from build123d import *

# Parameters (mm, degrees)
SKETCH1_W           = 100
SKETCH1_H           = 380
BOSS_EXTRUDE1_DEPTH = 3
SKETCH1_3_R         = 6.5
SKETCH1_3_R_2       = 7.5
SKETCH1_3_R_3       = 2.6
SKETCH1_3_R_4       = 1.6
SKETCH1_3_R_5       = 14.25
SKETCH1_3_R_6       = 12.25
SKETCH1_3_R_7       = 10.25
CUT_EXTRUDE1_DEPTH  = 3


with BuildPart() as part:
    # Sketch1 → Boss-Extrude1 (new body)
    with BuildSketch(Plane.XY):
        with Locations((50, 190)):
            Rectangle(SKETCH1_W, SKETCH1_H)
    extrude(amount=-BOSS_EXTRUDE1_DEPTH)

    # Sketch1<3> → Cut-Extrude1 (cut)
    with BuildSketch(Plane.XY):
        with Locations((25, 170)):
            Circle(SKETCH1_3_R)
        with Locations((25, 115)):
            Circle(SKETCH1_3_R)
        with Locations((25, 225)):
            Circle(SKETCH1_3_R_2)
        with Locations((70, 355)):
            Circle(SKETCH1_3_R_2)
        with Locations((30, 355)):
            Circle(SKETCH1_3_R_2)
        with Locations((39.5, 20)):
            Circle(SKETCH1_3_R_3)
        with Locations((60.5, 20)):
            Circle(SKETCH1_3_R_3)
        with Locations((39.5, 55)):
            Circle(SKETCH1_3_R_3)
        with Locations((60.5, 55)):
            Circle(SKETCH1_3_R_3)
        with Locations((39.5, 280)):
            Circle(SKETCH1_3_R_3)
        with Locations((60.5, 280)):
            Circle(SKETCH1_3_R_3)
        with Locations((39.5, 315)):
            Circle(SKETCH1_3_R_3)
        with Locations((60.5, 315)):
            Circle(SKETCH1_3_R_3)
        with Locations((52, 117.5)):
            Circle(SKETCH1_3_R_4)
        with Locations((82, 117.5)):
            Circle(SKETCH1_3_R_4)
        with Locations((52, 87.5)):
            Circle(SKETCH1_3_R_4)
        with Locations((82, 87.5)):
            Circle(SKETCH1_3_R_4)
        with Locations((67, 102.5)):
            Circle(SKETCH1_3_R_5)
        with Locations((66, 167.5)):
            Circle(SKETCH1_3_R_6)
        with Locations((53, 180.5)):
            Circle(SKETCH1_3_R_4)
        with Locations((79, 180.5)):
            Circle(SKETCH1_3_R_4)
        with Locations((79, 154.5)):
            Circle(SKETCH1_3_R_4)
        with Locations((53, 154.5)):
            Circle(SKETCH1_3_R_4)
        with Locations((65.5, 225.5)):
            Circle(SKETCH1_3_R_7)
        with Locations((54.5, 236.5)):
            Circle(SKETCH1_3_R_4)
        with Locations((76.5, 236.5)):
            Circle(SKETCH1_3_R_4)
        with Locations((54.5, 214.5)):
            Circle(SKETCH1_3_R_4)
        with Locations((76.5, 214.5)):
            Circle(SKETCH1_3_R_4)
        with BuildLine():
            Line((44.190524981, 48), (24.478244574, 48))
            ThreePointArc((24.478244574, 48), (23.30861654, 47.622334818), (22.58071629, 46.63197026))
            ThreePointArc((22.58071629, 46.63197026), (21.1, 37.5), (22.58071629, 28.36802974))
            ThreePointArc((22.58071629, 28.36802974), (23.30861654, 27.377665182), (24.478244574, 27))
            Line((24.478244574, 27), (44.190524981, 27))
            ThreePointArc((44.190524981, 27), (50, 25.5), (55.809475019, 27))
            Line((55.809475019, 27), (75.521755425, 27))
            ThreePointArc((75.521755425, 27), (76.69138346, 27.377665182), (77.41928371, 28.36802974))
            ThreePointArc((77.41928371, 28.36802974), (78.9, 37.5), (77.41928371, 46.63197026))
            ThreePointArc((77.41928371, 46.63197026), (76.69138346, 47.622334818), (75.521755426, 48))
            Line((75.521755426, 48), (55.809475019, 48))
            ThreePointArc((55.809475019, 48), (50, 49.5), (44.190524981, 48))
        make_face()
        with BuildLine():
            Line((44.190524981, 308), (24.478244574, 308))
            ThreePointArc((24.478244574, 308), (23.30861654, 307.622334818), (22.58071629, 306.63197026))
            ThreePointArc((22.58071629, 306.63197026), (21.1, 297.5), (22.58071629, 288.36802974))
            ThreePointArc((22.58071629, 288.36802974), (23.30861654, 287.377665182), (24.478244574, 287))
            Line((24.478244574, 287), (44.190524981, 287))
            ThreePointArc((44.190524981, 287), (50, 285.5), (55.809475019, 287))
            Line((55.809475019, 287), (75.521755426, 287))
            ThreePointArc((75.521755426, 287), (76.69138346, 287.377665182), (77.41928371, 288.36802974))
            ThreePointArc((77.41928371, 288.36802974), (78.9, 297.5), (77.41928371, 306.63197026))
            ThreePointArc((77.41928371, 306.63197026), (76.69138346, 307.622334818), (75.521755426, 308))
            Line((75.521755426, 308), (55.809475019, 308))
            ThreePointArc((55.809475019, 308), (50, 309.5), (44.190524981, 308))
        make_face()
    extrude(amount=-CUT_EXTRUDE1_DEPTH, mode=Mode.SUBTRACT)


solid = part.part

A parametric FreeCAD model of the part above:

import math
import FreeCAD as App
import Part
import Sketcher

V = App.Vector
Q = App.Units.Quantity


def add_polygon(sketch, points):
    """Adds a closed chain of lines whose ends are joined by coincident constraints."""
    first, n = sketch.GeometryCount, len(points)
    for a, b in zip(points, points[1:] + points[:1]):
        sketch.addGeometry(Part.LineSegment(App.Vector(*a, 0), App.Vector(*b, 0)), False)
    for i in range(n):
        sketch.addConstraint(Sketcher.Constraint("Coincident", first + i, 2, first + (i + 1) % n, 1))

doc = App.newDocument("Part")
body = doc.addObject("PartDesign::Body", "Body")

sketch1 = body.newObject("Sketcher::SketchObject", "Sketch")
sketch1.AttachmentSupport = (doc.getObject("XY_Plane"), [""])
sketch1.MapMode = "FlatFace"
add_polygon(sketch1, [(0, 380), (0, 0), (100, 0), (100, 380)])
sketch1.addConstraint([
    Sketcher.Constraint("Vertical", 0),
    Sketcher.Constraint("Horizontal", 1),
    Sketcher.Constraint("Vertical", 2),
    Sketcher.Constraint("Horizontal", 3),
    Sketcher.Constraint("Coincident", 0, 2, -1, 1),
    Sketcher.Constraint("DistanceX", 1, 1, 1, 2, Q("100 mm")),
    Sketcher.Constraint("DistanceY", 0, 2, 0, 1, Q("380 mm")),
])
pad1 = body.newObject("PartDesign::Pad", "Pad")
pad1.Profile = sketch1
pad1.Length = 3
pad1.Reversed = True

sketch2 = body.newObject("Sketcher::SketchObject", "Sketch001")
sketch2.AttachmentSupport = (doc.getObject("XY_Plane"), [""])
sketch2.MapMode = "FlatFace"
sketch2.addGeometry([
    Part.Circle(V(25, 170, 0), V(0, 0, 1), 6.5),
    Part.Circle(V(25, 115, 0), V(0, 0, 1), 6.5),
    Part.Circle(V(25, 225, 0), V(0, 0, 1), 7.5),
    Part.Circle(V(70, 355, 0), V(0, 0, 1), 7.5),
    Part.Circle(V(30, 355, 0), V(0, 0, 1), 7.5),
    Part.Circle(V(39.5, 20, 0), V(0, 0, 1), 2.6),
    Part.Circle(V(60.5, 20, 0), V(0, 0, 1), 2.6),
    Part.Circle(V(39.5, 55, 0), V(0, 0, 1), 2.6),
    Part.Circle(V(60.5, 55, 0), V(0, 0, 1), 2.6),
    Part.Circle(V(39.5, 280, 0), V(0, 0, 1), 2.6),
    Part.Circle(V(60.5, 280, 0), V(0, 0, 1), 2.6),
    Part.Circle(V(39.5, 315, 0), V(0, 0, 1), 2.6),
    Part.Circle(V(60.5, 315, 0), V(0, 0, 1), 2.6),
    Part.Circle(V(52, 117.5, 0), V(0, 0, 1), 1.6),
    Part.Circle(V(82, 117.5, 0), V(0, 0, 1), 1.6),
    Part.Circle(V(52, 87.5, 0), V(0, 0, 1), 1.6),
    Part.Circle(V(82, 87.5, 0), V(0, 0, 1), 1.6),
    Part.Circle(V(67, 102.5, 0), V(0, 0, 1), 14.2),
    Part.Circle(V(66, 167.5, 0), V(0, 0, 1), 12.2),
    Part.Circle(V(53, 180.5, 0), V(0, 0, 1), 1.6),
    Part.Circle(V(79, 180.5, 0), V(0, 0, 1), 1.6),
    Part.Circle(V(79, 154.5, 0), V(0, 0, 1), 1.6),
    Part.Circle(V(53, 154.5, 0), V(0, 0, 1), 1.6),
    Part.Circle(V(65.5, 225.5, 0), V(0, 0, 1), 10.2),
    Part.Circle(V(54.5, 236.5, 0), V(0, 0, 1), 1.6),
    Part.Circle(V(76.5, 236.5, 0), V(0, 0, 1), 1.6),
    Part.Circle(V(54.5, 214.5, 0), V(0, 0, 1), 1.6),
    Part.Circle(V(76.5, 214.5, 0), V(0, 0, 1), 1.6),
    Part.LineSegment(V(44.2, 48, 0), V(24.5, 48, 0)),
    Part.ArcOfCircle(Part.Circle(V(24.5, 46, 0), V(0, 0, 1), 2), math.radians(90), math.radians(162)),
    Part.ArcOfCircle(Part.Circle(V(50, 37.5, 0), V(0, 0, 1), 28.9), math.radians(162), math.radians(198)),
    Part.ArcOfCircle(Part.Circle(V(24.5, 29, 0), V(0, 0, 1), 2), math.radians(-162), math.radians(-90)),
    Part.LineSegment(V(24.5, 27, 0), V(44.2, 27, 0)),
    Part.ArcOfCircle(Part.Circle(V(50, 37.5, 0), V(0, 0, 1), 12), math.radians(-119), math.radians(-61)),
    Part.LineSegment(V(55.8, 27, 0), V(75.5, 27, 0)),
    Part.ArcOfCircle(Part.Circle(V(75.5, 29, 0), V(0, 0, 1), 2), math.radians(-90), math.radians(-18)),
    Part.ArcOfCircle(Part.Circle(V(50, 37.5, 0), V(0, 0, 1), 28.9), math.radians(-18), math.radians(18)),
    Part.ArcOfCircle(Part.Circle(V(75.5, 46, 0), V(0, 0, 1), 2), math.radians(18), math.radians(90)),
    Part.LineSegment(V(75.5, 48, 0), V(55.8, 48, 0)),
    Part.ArcOfCircle(Part.Circle(V(50, 37.5, 0), V(0, 0, 1), 12), math.radians(61), math.radians(119)),
    Part.LineSegment(V(44.2, 308, 0), V(24.5, 308, 0)),
    Part.ArcOfCircle(Part.Circle(V(24.5, 306, 0), V(0, 0, 1), 2), math.radians(90), math.radians(162)),
    Part.ArcOfCircle(Part.Circle(V(50, 297.5, 0), V(0, 0, 1), 28.9), math.radians(162), math.radians(198)),
    Part.ArcOfCircle(Part.Circle(V(24.5, 289, 0), V(0, 0, 1), 2), math.radians(-162), math.radians(-90)),
    Part.LineSegment(V(24.5, 287, 0), V(44.2, 287, 0)),
    Part.ArcOfCircle(Part.Circle(V(50, 297.5, 0), V(0, 0, 1), 12), math.radians(-119), math.radians(-61)),
    Part.LineSegment(V(55.8, 287, 0), V(75.5, 287, 0)),
    Part.ArcOfCircle(Part.Circle(V(75.5, 289, 0), V(0, 0, 1), 2), math.radians(-90), math.radians(-18)),
    Part.ArcOfCircle(Part.Circle(V(50, 297.5, 0), V(0, 0, 1), 28.9), math.radians(-18), math.radians(18)),
    Part.ArcOfCircle(Part.Circle(V(75.5, 306, 0), V(0, 0, 1), 2), math.radians(18), math.radians(90)),
    Part.LineSegment(V(75.5, 308, 0), V(55.8, 308, 0)),
    Part.ArcOfCircle(Part.Circle(V(50, 297.5, 0), V(0, 0, 1), 12), math.radians(61), math.radians(119)),
], False)
sketch2.addConstraint([
    Sketcher.Constraint("Tangent", 28, 2, 29, 1),
    Sketcher.Constraint("Tangent", 29, 2, 30, 1),
    Sketcher.Constraint("Tangent", 30, 2, 31, 1),
    Sketcher.Constraint("Tangent", 31, 2, 32, 1),
    Sketcher.Constraint("Coincident", 32, 2, 33, 1),
    Sketcher.Constraint("Coincident", 33, 2, 34, 1),
    Sketcher.Constraint("Tangent", 34, 2, 35, 1),
    Sketcher.Constraint("Tangent", 35, 2, 36, 1),
    Sketcher.Constraint("Tangent", 36, 2, 37, 1),
    Sketcher.Constraint("Tangent", 37, 2, 38, 1),
    Sketcher.Constraint("Coincident", 38, 2, 39, 1),
    Sketcher.Constraint("Coincident", 39, 2, 28, 1),
    Sketcher.Constraint("Tangent", 40, 2, 41, 1),
    Sketcher.Constraint("Tangent", 41, 2, 42, 1),
    Sketcher.Constraint("Tangent", 42, 2, 43, 1),
    Sketcher.Constraint("Tangent", 43, 2, 44, 1),
    Sketcher.Constraint("Coincident", 44, 2, 45, 1),
    Sketcher.Constraint("Coincident", 45, 2, 46, 1),
    Sketcher.Constraint("Tangent", 46, 2, 47, 1),
    Sketcher.Constraint("Tangent", 47, 2, 48, 1),
    Sketcher.Constraint("Tangent", 48, 2, 49, 1),
    Sketcher.Constraint("Tangent", 49, 2, 50, 1),
    Sketcher.Constraint("Coincident", 50, 2, 51, 1),
    Sketcher.Constraint("Coincident", 51, 2, 40, 1),
    Sketcher.Constraint("Horizontal", 28),
    Sketcher.Constraint("Horizontal", 32),
    Sketcher.Constraint("Horizontal", 34),
    Sketcher.Constraint("Horizontal", 38),
    Sketcher.Constraint("Horizontal", 40),
    Sketcher.Constraint("Horizontal", 44),
    Sketcher.Constraint("Horizontal", 46),
    Sketcher.Constraint("Horizontal", 50),
    Sketcher.Constraint("Coincident", 33, 3, 30, 3),
    Sketcher.Constraint("Coincident", 36, 3, 30, 3),
    Sketcher.Constraint("Coincident", 39, 3, 30, 3),
    Sketcher.Constraint("Coincident", 45, 3, 42, 3),
    Sketcher.Constraint("Coincident", 48, 3, 42, 3),
    Sketcher.Constraint("Coincident", 51, 3, 42, 3),
    Sketcher.Constraint("Equal", 0, 1),
    Sketcher.Constraint("Equal", 2, 3),
    Sketcher.Constraint("Equal", 3, 4),
    Sketcher.Constraint("Equal", 5, 6),
    Sketcher.Constraint("Equal", 6, 7),
    Sketcher.Constraint("Equal", 7, 8),
    Sketcher.Constraint("Equal", 8, 9),
    Sketcher.Constraint("Equal", 9, 10),
    Sketcher.Constraint("Equal", 10, 11),
    Sketcher.Constraint("Equal", 11, 12),
    Sketcher.Constraint("Equal", 13, 14),
    Sketcher.Constraint("Equal", 14, 15),
    Sketcher.Constraint("Equal", 15, 16),
    Sketcher.Constraint("Equal", 16, 19),
    Sketcher.Constraint("Equal", 19, 20),
    Sketcher.Constraint("Equal", 20, 21),
    Sketcher.Constraint("Equal", 21, 22),
    Sketcher.Constraint("Equal", 22, 24),
    Sketcher.Constraint("Equal", 24, 25),
    Sketcher.Constraint("Equal", 25, 26),
    Sketcher.Constraint("Equal", 26, 27),
    Sketcher.Constraint("Equal", 29, 31),
    Sketcher.Constraint("Equal", 31, 35),
    Sketcher.Constraint("Equal", 30, 36),
    Sketcher.Constraint("Equal", 35, 37),
    Sketcher.Constraint("Equal", 33, 39),
    Sketcher.Constraint("Equal", 37, 41),
    Sketcher.Constraint("Equal", 36, 42),
    Sketcher.Constraint("Equal", 41, 43),
    Sketcher.Constraint("Equal", 39, 45),
    Sketcher.Constraint("Equal", 43, 47),
    Sketcher.Constraint("Equal", 42, 48),
    Sketcher.Constraint("Equal", 47, 49),
    Sketcher.Constraint("Equal", 45, 51),
    Sketcher.Constraint("Horizontal", 3, 3, 4, 3),
    Sketcher.Constraint("Horizontal", 5, 3, 6, 3),
    Sketcher.Constraint("Horizontal", 7, 3, 8, 3),
    Sketcher.Constraint("Horizontal", 9, 3, 10, 3),
    Sketcher.Constraint("Horizontal", 11, 3, 12, 3),
    Sketcher.Constraint("Horizontal", 13, 3, 14, 3),
    Sketcher.Constraint("Horizontal", 15, 3, 16, 3),
    Sketcher.Constraint("Horizontal", 19, 3, 20, 3),
    Sketcher.Constraint("Horizontal", 21, 3, 22, 3),
    Sketcher.Constraint("Horizontal", 24, 3, 25, 3),
    Sketcher.Constraint("Horizontal", 26, 3, 27, 3),
    Sketcher.Constraint("Horizontal", 31, 3, 35, 3),
    Sketcher.Constraint("Horizontal", 29, 3, 37, 3),
    Sketcher.Constraint("Horizontal", 43, 3, 47, 3),
    Sketcher.Constraint("Horizontal", 41, 3, 49, 3),
    Sketcher.Constraint("Vertical", 0, 3, 1, 3),
    Sketcher.Constraint("Vertical", 1, 3, 2, 3),
    Sketcher.Constraint("Vertical", 5, 3, 7, 3),
    Sketcher.Constraint("Vertical", 6, 3, 8, 3),
    Sketcher.Constraint("Vertical", 7, 3, 9, 3),
    Sketcher.Constraint("Vertical", 8, 3, 10, 3),
    Sketcher.Constraint("Vertical", 9, 3, 11, 3),
    Sketcher.Constraint("Vertical", 10, 3, 12, 3),
    Sketcher.Constraint("Vertical", 13, 3, 15, 3),
    Sketcher.Constraint("Vertical", 14, 3, 16, 3),
    Sketcher.Constraint("Vertical", 20, 3, 21, 3),
    Sketcher.Constraint("Vertical", 19, 3, 22, 3),
    Sketcher.Constraint("Vertical", 24, 3, 26, 3),
    Sketcher.Constraint("Vertical", 25, 3, 27, 3),
    Sketcher.Constraint("Vertical", 29, 3, 31, 3),
    Sketcher.Constraint("Vertical", 31, 3, 41, 3),
    Sketcher.Constraint("Vertical", 39, 3, 42, 3),
    Sketcher.Constraint("Vertical", 41, 3, 43, 3),
    Sketcher.Constraint("Diameter", 0, Q("13 mm")),
    Sketcher.Constraint("Diameter", 2, Q("15 mm")),
    Sketcher.Constraint("Radius", 29, Q("2 mm")),
    Sketcher.Constraint("Radius", 33, Q("12 mm")),
    Sketcher.Constraint("Diameter", 5, Q("5.2 mm")),
    Sketcher.Constraint("Diameter", 13, Q("3.2 mm")),
    Sketcher.Constraint("Diameter", 17, Q("28.5 mm")),
    Sketcher.Constraint("Diameter", 18, Q("24.5 mm")),
    Sketcher.Constraint("Diameter", 23, Q("20.5 mm")),
    Sketcher.Constraint("Radius", 30, Q("28.9 mm")),
    Sketcher.Constraint("DistanceX", -1, 1, 0, 3, Q("25 mm")),
    Sketcher.Constraint("DistanceY", -1, 1, 0, 3, Q("170 mm")),
    Sketcher.Constraint("DistanceY", -1, 1, 1, 3, Q("115 mm")),
    Sketcher.Constraint("DistanceY", -1, 1, 2, 3, Q("225 mm")),
    Sketcher.Constraint("DistanceX", -1, 1, 3, 3, Q("70 mm")),
    Sketcher.Constraint("DistanceY", -1, 1, 3, 3, Q("355 mm")),
    Sketcher.Constraint("DistanceX", -1, 1, 4, 3, Q("30 mm")),
    Sketcher.Constraint("DistanceY", -1, 1, 5, 3, Q("20 mm")),
    Sketcher.Constraint("DistanceY", -1, 1, 7, 3, Q("55 mm")),
    Sketcher.Constraint("DistanceY", -1, 1, 9, 3, Q("280 mm")),
    Sketcher.Constraint("DistanceY", -1, 1, 11, 3, Q("315 mm")),
    Sketcher.Constraint("DistanceX", -1, 1, 13, 3, Q("52 mm")),
    Sketcher.Constraint("DistanceX", -1, 1, 14, 3, Q("82 mm")),
    Sketcher.Constraint("DistanceX", -1, 1, 17, 3, Q("67 mm")),
    Sketcher.Constraint("DistanceX", -1, 1, 18, 3, Q("66 mm")),
    Sketcher.Constraint("DistanceX", -1, 1, 19, 3, Q("53 mm")),
    Sketcher.Constraint("DistanceX", -1, 1, 20, 3, Q("79 mm")),
    Sketcher.Constraint("DistanceY", -1, 1, 29, 3, Q("46 mm")),
    Sketcher.Constraint("DistanceX", -1, 1, 30, 3, Q("50 mm")),
    Sketcher.Constraint("DistanceY", -1, 1, 31, 3, Q("29 mm")),
    Sketcher.Constraint("DistanceY", -1, 1, 41, 3, Q("306 mm")),
    Sketcher.Constraint("DistanceX", -1, 1, 5, 3, Q("39.5 mm")),
    Sketcher.Constraint("DistanceX", -1, 1, 6, 3, Q("60.5 mm")),
    Sketcher.Constraint("DistanceY", -1, 1, 13, 3, Q("117.5 mm")),
    Sketcher.Constraint("DistanceY", -1, 1, 15, 3, Q("87.5 mm")),
    Sketcher.Constraint("DistanceY", -1, 1, 17, 3, Q("102.5 mm")),
    Sketcher.Constraint("DistanceY", -1, 1, 18, 3, Q("167.5 mm")),
    Sketcher.Constraint("DistanceY", -1, 1, 19, 3, Q("180.5 mm")),
    Sketcher.Constraint("DistanceY", -1, 1, 21, 3, Q("154.5 mm")),
    Sketcher.Constraint("DistanceX", -1, 1, 23, 3, Q("65.5 mm")),
    Sketcher.Constraint("DistanceY", -1, 1, 23, 3, Q("225.5 mm")),
    Sketcher.Constraint("DistanceX", -1, 1, 24, 3, Q("54.5 mm")),
    Sketcher.Constraint("DistanceY", -1, 1, 24, 3, Q("236.5 mm")),
    Sketcher.Constraint("DistanceX", -1, 1, 25, 3, Q("76.5 mm")),
    Sketcher.Constraint("DistanceY", -1, 1, 26, 3, Q("214.5 mm")),
])
pocket1 = body.newObject("PartDesign::Pocket", "Pocket")
pocket1.Profile = sketch2
pocket1.Length = 3

doc.recompute()
